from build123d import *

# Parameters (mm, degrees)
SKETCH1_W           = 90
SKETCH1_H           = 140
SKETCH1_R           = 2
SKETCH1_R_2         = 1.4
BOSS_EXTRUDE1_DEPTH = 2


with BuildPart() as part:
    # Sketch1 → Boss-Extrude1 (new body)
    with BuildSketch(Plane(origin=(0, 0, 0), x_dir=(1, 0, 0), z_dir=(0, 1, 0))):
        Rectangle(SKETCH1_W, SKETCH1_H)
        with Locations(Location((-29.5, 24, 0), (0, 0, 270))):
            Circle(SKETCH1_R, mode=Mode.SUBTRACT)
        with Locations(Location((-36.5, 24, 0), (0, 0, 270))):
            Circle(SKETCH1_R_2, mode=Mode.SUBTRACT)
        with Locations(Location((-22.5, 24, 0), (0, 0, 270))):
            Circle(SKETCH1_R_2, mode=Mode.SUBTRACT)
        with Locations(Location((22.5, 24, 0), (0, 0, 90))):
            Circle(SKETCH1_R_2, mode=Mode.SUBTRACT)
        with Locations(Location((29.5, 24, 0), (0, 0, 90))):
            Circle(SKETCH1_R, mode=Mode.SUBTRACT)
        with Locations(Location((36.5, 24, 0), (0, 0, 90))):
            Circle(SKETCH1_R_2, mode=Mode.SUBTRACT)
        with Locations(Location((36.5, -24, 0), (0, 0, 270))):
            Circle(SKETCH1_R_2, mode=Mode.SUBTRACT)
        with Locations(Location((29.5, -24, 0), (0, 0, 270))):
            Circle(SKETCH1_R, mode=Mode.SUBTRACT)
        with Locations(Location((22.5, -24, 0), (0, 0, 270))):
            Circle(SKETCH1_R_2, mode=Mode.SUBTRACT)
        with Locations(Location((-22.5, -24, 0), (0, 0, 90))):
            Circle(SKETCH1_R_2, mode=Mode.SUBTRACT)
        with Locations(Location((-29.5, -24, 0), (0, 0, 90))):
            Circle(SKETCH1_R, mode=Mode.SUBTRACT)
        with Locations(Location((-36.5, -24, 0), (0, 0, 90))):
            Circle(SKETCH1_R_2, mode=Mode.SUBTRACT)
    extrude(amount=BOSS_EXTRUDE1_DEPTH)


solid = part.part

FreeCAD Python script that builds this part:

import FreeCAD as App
import Part
import Sketcher
Q = App.Units.Quantity

doc = App.newDocument("Part")
body = doc.addObject("PartDesign::Body", "Body")

sketch1 = body.newObject("Sketcher::SketchObject", "Sketch")
sketch1.AttachmentSupport = (doc.getObject("XZ_Plane"), [""])
sketch1.MapMode = "FlatFace"
sketch1.addGeometry([
    Part.LineSegment(App.Vector(-45, -70, 0), App.Vector(-45, 70, 0)),
    Part.LineSegment(App.Vector(-45, 70, 0), App.Vector(45, 70, 0)),
    Part.LineSegment(App.Vector(45, 70, 0), App.Vector(45, -70, 0)),
    Part.LineSegment(App.Vector(45, -70, 0), App.Vector(-45, -70, 0)),
    Part.Circle(App.Vector(-36.5, 24, 0), App.Vector(0, 0, 1), 1.4),
    Part.Circle(App.Vector(-29.5, 24, 0), App.Vector(0, 0, 1), 2),
    Part.Circle(App.Vector(-22.5, 24, 0), App.Vector(0, 0, 1), 1.4),
    Part.Circle(App.Vector(22.5, 24, 0), App.Vector(0, 0, 1), 1.4),
    Part.Circle(App.Vector(29.5, 24, 0), App.Vector(0, 0, 1), 2),
    Part.Circle(App.Vector(36.5, 24, 0), App.Vector(0, 0, 1), 1.4),
    Part.Circle(App.Vector(-36.5, -24, 0), App.Vector(0, 0, 1), 1.4),
    Part.Circle(App.Vector(-29.5, -24, 0), App.Vector(0, 0, 1), 2),
    Part.Circle(App.Vector(-22.5, -24, 0), App.Vector(0, 0, 1), 1.4),
    Part.Circle(App.Vector(22.5, -24, 0), App.Vector(0, 0, 1), 1.4),
    Part.Circle(App.Vector(29.5, -24, 0), App.Vector(0, 0, 1), 2),
    Part.Circle(App.Vector(36.5, -24, 0), App.Vector(0, 0, 1), 1.4),
], False)
sketch1.addConstraint([
    Sketcher.Constraint("Coincident", 0, 2, 1, 1),
    Sketcher.Constraint("Coincident", 1, 2, 2, 1),
    Sketcher.Constraint("Coincident", 2, 2, 3, 1),
    Sketcher.Constraint("Coincident", 3, 2, 0, 1),
    Sketcher.Constraint("Vertical", 0),
    Sketcher.Constraint("Horizontal", 1),
    Sketcher.Constraint("Vertical", 2),
    Sketcher.Constraint("Horizontal", 3),
    Sketcher.Constraint("Equal", 4, 6),
    Sketcher.Constraint("Equal", 6, 7),
    Sketcher.Constraint("Equal", 5, 8),
    Sketcher.Constraint("Equal", 7, 9),
    Sketcher.Constraint("Equal", 9, 10),
    Sketcher.Constraint("Equal", 8, 11),
    Sketcher.Constraint("Equal", 10, 12),
    Sketcher.Constraint("Equal", 12, 13),
    Sketcher.Constraint("Equal", 11, 14),
    Sketcher.Constraint("Equal", 13, 15),
    Sketcher.Constraint("Symmetric", 9, 3, 10, 3, -1, 1),
    Sketcher.Constraint("Symmetric", 8, 3, 11, 3, -1, 1),
    Sketcher.Constraint("Symmetric", 7, 3, 12, 3, -1, 1),
    Sketcher.Constraint("Symmetric", 6, 3, 13, 3, -1, 1),
    Sketcher.Constraint("Symmetric", 5, 3, 14, 3, -1, 1),
    Sketcher.Constraint("Symmetric", 4, 3, 15, 3, -1, 1),
    Sketcher.Constraint("Symmetric", 0, 2, 2, 2, -1, 1),
    Sketcher.Constraint("Symmetric", 6, 3, 7, 3, -2),
    Sketcher.Constraint("Symmetric", 5, 3, 8, 3, -2),
    Sketcher.Constraint("Symmetric", 4, 3, 9, 3, -2),
    Sketcher.Constraint("Horizontal", 4, 3, 5, 3),
    Sketcher.Constraint("Horizontal", 5, 3, 6, 3),
    Sketcher.Constraint("Diameter", 5, Q("4 mm")),
    Sketcher.Constraint("Diameter", 4, Q("2.8 mm")),
    Sketcher.Constraint("DistanceX", 1, 1, 1, 2, Q("90 mm")),
    Sketcher.Constraint("DistanceY", 0, 1, 0, 2, Q("140 mm")),
    Sketcher.Constraint("DistanceY", -1, 1, 4, 3, Q("24 mm")),
    Sketcher.Constraint("DistanceX", 4, 3, 5, 3, Q("7 mm")),
    Sketcher.Constraint("DistanceX", 5, 3, 6, 3, Q("7 mm")),
    Sketcher.Constraint("DistanceX", 6, 3, 7, 3, Q("45 mm")),
])
pad1 = body.newObject("PartDesign::Pad", "Pad")
pad1.Profile = sketch1
pad1.Length = 2
pad1.Reversed = True

doc.recompute()
